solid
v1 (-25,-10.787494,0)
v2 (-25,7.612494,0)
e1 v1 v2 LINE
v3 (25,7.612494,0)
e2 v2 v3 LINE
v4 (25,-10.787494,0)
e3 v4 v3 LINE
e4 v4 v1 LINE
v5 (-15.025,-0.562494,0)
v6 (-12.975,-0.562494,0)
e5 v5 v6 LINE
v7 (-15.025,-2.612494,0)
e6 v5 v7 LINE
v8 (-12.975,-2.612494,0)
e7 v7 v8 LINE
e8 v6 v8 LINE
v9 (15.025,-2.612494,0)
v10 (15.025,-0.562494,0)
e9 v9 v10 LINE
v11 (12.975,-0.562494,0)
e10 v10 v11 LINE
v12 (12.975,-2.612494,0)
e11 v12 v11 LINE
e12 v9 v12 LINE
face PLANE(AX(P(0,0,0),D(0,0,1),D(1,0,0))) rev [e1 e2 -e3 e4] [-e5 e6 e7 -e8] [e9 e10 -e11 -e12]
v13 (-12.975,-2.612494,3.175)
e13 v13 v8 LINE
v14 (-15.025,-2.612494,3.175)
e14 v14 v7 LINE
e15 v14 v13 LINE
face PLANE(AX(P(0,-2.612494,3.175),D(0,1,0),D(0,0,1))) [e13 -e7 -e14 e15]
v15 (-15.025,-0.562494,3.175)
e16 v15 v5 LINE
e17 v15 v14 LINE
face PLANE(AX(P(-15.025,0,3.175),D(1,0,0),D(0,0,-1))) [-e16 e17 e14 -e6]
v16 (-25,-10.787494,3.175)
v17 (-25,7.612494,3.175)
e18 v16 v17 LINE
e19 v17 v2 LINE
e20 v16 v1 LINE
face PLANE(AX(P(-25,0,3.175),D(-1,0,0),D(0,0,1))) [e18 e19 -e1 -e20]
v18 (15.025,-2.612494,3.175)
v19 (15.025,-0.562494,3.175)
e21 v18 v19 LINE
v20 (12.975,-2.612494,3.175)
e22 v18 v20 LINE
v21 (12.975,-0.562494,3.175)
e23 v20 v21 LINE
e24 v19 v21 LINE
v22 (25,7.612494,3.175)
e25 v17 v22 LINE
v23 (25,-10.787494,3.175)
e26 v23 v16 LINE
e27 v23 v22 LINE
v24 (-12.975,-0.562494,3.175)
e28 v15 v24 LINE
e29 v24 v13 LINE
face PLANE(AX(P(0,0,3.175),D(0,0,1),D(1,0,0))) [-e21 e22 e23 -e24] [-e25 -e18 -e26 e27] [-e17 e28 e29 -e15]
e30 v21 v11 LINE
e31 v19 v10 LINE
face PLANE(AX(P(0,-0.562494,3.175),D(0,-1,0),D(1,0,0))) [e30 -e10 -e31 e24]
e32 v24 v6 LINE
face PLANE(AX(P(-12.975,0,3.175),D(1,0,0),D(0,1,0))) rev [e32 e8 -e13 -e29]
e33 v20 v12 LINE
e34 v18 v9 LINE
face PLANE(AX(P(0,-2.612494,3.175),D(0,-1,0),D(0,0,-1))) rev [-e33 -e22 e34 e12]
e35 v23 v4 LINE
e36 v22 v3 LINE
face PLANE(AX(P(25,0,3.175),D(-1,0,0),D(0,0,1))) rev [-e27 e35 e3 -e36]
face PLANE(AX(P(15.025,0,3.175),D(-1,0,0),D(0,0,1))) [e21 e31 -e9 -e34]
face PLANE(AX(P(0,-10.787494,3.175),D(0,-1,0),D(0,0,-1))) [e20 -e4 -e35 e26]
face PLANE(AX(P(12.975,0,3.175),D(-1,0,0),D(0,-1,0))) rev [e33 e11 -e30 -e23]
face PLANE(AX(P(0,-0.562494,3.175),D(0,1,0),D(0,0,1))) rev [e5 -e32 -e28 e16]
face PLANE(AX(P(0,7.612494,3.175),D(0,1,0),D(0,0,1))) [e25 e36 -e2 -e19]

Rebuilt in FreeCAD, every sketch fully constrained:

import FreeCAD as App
import Part
import Sketcher

V = App.Vector
Q = App.Units.Quantity


def add_polygon(sketch, points):
    """Adds a closed chain of lines whose ends are joined by coincident constraints."""
    first, n = sketch.GeometryCount, len(points)
    for a, b in zip(points, points[1:] + points[:1]):
        sketch.addGeometry(Part.LineSegment(App.Vector(*a, 0), App.Vector(*b, 0)), False)
    for i in range(n):
        sketch.addConstraint(Sketcher.Constraint("Coincident", first + i, 2, first + (i + 1) % n, 1))

doc = App.newDocument("Part")
body = doc.addObject("PartDesign::Body", "Body")

# Sketch on XY plane
sketch1 = doc.addObject("Sketcher::SketchObject", "Sketch")
body.addObject(sketch1)
sketch1.AttachmentSupport = (doc.XY_Plane, [""])
sketch1.MapMode = "FlatFace"
add_polygon(sketch1, [(-25, -10.787494), (25, -10.787494), (25, 7.612494), (-25, 7.612494)])  # lines 0-3
add_polygon(sketch1, [(-12.975, -2.612494), (-15.025, -2.612494), (-15.025, -0.562494), (-12.975, -0.562494)])  # lines 4-7
add_polygon(sketch1, [(15.025, -2.612494), (12.975, -2.612494), (12.975, -0.562494), (15.025, -0.562494)])  # lines 8-11
sketch1.addConstraint(Sketcher.Constraint("Horizontal", 0))
sketch1.addConstraint(Sketcher.Constraint("Vertical", 1))
sketch1.addConstraint(Sketcher.Constraint("Horizontal", 2))
sketch1.addConstraint(Sketcher.Constraint("Vertical", 3))
sketch1.addConstraint(Sketcher.Constraint("Horizontal", 4))
sketch1.addConstraint(Sketcher.Constraint("Vertical", 5))
sketch1.addConstraint(Sketcher.Constraint("Horizontal", 6))
sketch1.addConstraint(Sketcher.Constraint("Vertical", 7))
sketch1.addConstraint(Sketcher.Constraint("Horizontal", 8))
sketch1.addConstraint(Sketcher.Constraint("Vertical", 9))
sketch1.addConstraint(Sketcher.Constraint("Horizontal", 10))
sketch1.addConstraint(Sketcher.Constraint("Vertical", 11))
sketch1.addConstraint(Sketcher.Constraint("Symmetric", 7, 2, 8, 2, -2))
sketch1.addConstraint(Sketcher.Constraint("Symmetric", 5, 2, 10, 2, -2))
sketch1.addConstraint(Sketcher.Constraint("Equal", 10, 5))
sketch1.addConstraint(Sketcher.Constraint("DistanceX", 0, 1, 0, 2, Q("50 mm")))
sketch1.addConstraint(Sketcher.Constraint("DistanceX", -1, 1, 0, 2, Q("25 mm")))
sketch1.addConstraint(Sketcher.Constraint("DistanceX", 4, 2, 8, 2, Q("28 mm")))
sketch1.addConstraint(Sketcher.Constraint("DistanceX", 4, 2, 4, 1, Q("2.05 mm")))
sketch1.addConstraint(Sketcher.Constraint("DistanceY", 3, 2, 4, 2, Q("8.175 mm")))
sketch1.addConstraint(Sketcher.Constraint("DistanceY", 1, 1, 1, 2, Q("18.399989 mm")))
sketch1.addConstraint(Sketcher.Constraint("DistanceY", 0, 2, -1, 1, Q("10.787494 mm")))
pad1 = doc.addObject("PartDesign::Pad", "Pad")
body.addObject(pad1)
pad1.Profile = sketch1
pad1.Length = 3.175

doc.recompute()
